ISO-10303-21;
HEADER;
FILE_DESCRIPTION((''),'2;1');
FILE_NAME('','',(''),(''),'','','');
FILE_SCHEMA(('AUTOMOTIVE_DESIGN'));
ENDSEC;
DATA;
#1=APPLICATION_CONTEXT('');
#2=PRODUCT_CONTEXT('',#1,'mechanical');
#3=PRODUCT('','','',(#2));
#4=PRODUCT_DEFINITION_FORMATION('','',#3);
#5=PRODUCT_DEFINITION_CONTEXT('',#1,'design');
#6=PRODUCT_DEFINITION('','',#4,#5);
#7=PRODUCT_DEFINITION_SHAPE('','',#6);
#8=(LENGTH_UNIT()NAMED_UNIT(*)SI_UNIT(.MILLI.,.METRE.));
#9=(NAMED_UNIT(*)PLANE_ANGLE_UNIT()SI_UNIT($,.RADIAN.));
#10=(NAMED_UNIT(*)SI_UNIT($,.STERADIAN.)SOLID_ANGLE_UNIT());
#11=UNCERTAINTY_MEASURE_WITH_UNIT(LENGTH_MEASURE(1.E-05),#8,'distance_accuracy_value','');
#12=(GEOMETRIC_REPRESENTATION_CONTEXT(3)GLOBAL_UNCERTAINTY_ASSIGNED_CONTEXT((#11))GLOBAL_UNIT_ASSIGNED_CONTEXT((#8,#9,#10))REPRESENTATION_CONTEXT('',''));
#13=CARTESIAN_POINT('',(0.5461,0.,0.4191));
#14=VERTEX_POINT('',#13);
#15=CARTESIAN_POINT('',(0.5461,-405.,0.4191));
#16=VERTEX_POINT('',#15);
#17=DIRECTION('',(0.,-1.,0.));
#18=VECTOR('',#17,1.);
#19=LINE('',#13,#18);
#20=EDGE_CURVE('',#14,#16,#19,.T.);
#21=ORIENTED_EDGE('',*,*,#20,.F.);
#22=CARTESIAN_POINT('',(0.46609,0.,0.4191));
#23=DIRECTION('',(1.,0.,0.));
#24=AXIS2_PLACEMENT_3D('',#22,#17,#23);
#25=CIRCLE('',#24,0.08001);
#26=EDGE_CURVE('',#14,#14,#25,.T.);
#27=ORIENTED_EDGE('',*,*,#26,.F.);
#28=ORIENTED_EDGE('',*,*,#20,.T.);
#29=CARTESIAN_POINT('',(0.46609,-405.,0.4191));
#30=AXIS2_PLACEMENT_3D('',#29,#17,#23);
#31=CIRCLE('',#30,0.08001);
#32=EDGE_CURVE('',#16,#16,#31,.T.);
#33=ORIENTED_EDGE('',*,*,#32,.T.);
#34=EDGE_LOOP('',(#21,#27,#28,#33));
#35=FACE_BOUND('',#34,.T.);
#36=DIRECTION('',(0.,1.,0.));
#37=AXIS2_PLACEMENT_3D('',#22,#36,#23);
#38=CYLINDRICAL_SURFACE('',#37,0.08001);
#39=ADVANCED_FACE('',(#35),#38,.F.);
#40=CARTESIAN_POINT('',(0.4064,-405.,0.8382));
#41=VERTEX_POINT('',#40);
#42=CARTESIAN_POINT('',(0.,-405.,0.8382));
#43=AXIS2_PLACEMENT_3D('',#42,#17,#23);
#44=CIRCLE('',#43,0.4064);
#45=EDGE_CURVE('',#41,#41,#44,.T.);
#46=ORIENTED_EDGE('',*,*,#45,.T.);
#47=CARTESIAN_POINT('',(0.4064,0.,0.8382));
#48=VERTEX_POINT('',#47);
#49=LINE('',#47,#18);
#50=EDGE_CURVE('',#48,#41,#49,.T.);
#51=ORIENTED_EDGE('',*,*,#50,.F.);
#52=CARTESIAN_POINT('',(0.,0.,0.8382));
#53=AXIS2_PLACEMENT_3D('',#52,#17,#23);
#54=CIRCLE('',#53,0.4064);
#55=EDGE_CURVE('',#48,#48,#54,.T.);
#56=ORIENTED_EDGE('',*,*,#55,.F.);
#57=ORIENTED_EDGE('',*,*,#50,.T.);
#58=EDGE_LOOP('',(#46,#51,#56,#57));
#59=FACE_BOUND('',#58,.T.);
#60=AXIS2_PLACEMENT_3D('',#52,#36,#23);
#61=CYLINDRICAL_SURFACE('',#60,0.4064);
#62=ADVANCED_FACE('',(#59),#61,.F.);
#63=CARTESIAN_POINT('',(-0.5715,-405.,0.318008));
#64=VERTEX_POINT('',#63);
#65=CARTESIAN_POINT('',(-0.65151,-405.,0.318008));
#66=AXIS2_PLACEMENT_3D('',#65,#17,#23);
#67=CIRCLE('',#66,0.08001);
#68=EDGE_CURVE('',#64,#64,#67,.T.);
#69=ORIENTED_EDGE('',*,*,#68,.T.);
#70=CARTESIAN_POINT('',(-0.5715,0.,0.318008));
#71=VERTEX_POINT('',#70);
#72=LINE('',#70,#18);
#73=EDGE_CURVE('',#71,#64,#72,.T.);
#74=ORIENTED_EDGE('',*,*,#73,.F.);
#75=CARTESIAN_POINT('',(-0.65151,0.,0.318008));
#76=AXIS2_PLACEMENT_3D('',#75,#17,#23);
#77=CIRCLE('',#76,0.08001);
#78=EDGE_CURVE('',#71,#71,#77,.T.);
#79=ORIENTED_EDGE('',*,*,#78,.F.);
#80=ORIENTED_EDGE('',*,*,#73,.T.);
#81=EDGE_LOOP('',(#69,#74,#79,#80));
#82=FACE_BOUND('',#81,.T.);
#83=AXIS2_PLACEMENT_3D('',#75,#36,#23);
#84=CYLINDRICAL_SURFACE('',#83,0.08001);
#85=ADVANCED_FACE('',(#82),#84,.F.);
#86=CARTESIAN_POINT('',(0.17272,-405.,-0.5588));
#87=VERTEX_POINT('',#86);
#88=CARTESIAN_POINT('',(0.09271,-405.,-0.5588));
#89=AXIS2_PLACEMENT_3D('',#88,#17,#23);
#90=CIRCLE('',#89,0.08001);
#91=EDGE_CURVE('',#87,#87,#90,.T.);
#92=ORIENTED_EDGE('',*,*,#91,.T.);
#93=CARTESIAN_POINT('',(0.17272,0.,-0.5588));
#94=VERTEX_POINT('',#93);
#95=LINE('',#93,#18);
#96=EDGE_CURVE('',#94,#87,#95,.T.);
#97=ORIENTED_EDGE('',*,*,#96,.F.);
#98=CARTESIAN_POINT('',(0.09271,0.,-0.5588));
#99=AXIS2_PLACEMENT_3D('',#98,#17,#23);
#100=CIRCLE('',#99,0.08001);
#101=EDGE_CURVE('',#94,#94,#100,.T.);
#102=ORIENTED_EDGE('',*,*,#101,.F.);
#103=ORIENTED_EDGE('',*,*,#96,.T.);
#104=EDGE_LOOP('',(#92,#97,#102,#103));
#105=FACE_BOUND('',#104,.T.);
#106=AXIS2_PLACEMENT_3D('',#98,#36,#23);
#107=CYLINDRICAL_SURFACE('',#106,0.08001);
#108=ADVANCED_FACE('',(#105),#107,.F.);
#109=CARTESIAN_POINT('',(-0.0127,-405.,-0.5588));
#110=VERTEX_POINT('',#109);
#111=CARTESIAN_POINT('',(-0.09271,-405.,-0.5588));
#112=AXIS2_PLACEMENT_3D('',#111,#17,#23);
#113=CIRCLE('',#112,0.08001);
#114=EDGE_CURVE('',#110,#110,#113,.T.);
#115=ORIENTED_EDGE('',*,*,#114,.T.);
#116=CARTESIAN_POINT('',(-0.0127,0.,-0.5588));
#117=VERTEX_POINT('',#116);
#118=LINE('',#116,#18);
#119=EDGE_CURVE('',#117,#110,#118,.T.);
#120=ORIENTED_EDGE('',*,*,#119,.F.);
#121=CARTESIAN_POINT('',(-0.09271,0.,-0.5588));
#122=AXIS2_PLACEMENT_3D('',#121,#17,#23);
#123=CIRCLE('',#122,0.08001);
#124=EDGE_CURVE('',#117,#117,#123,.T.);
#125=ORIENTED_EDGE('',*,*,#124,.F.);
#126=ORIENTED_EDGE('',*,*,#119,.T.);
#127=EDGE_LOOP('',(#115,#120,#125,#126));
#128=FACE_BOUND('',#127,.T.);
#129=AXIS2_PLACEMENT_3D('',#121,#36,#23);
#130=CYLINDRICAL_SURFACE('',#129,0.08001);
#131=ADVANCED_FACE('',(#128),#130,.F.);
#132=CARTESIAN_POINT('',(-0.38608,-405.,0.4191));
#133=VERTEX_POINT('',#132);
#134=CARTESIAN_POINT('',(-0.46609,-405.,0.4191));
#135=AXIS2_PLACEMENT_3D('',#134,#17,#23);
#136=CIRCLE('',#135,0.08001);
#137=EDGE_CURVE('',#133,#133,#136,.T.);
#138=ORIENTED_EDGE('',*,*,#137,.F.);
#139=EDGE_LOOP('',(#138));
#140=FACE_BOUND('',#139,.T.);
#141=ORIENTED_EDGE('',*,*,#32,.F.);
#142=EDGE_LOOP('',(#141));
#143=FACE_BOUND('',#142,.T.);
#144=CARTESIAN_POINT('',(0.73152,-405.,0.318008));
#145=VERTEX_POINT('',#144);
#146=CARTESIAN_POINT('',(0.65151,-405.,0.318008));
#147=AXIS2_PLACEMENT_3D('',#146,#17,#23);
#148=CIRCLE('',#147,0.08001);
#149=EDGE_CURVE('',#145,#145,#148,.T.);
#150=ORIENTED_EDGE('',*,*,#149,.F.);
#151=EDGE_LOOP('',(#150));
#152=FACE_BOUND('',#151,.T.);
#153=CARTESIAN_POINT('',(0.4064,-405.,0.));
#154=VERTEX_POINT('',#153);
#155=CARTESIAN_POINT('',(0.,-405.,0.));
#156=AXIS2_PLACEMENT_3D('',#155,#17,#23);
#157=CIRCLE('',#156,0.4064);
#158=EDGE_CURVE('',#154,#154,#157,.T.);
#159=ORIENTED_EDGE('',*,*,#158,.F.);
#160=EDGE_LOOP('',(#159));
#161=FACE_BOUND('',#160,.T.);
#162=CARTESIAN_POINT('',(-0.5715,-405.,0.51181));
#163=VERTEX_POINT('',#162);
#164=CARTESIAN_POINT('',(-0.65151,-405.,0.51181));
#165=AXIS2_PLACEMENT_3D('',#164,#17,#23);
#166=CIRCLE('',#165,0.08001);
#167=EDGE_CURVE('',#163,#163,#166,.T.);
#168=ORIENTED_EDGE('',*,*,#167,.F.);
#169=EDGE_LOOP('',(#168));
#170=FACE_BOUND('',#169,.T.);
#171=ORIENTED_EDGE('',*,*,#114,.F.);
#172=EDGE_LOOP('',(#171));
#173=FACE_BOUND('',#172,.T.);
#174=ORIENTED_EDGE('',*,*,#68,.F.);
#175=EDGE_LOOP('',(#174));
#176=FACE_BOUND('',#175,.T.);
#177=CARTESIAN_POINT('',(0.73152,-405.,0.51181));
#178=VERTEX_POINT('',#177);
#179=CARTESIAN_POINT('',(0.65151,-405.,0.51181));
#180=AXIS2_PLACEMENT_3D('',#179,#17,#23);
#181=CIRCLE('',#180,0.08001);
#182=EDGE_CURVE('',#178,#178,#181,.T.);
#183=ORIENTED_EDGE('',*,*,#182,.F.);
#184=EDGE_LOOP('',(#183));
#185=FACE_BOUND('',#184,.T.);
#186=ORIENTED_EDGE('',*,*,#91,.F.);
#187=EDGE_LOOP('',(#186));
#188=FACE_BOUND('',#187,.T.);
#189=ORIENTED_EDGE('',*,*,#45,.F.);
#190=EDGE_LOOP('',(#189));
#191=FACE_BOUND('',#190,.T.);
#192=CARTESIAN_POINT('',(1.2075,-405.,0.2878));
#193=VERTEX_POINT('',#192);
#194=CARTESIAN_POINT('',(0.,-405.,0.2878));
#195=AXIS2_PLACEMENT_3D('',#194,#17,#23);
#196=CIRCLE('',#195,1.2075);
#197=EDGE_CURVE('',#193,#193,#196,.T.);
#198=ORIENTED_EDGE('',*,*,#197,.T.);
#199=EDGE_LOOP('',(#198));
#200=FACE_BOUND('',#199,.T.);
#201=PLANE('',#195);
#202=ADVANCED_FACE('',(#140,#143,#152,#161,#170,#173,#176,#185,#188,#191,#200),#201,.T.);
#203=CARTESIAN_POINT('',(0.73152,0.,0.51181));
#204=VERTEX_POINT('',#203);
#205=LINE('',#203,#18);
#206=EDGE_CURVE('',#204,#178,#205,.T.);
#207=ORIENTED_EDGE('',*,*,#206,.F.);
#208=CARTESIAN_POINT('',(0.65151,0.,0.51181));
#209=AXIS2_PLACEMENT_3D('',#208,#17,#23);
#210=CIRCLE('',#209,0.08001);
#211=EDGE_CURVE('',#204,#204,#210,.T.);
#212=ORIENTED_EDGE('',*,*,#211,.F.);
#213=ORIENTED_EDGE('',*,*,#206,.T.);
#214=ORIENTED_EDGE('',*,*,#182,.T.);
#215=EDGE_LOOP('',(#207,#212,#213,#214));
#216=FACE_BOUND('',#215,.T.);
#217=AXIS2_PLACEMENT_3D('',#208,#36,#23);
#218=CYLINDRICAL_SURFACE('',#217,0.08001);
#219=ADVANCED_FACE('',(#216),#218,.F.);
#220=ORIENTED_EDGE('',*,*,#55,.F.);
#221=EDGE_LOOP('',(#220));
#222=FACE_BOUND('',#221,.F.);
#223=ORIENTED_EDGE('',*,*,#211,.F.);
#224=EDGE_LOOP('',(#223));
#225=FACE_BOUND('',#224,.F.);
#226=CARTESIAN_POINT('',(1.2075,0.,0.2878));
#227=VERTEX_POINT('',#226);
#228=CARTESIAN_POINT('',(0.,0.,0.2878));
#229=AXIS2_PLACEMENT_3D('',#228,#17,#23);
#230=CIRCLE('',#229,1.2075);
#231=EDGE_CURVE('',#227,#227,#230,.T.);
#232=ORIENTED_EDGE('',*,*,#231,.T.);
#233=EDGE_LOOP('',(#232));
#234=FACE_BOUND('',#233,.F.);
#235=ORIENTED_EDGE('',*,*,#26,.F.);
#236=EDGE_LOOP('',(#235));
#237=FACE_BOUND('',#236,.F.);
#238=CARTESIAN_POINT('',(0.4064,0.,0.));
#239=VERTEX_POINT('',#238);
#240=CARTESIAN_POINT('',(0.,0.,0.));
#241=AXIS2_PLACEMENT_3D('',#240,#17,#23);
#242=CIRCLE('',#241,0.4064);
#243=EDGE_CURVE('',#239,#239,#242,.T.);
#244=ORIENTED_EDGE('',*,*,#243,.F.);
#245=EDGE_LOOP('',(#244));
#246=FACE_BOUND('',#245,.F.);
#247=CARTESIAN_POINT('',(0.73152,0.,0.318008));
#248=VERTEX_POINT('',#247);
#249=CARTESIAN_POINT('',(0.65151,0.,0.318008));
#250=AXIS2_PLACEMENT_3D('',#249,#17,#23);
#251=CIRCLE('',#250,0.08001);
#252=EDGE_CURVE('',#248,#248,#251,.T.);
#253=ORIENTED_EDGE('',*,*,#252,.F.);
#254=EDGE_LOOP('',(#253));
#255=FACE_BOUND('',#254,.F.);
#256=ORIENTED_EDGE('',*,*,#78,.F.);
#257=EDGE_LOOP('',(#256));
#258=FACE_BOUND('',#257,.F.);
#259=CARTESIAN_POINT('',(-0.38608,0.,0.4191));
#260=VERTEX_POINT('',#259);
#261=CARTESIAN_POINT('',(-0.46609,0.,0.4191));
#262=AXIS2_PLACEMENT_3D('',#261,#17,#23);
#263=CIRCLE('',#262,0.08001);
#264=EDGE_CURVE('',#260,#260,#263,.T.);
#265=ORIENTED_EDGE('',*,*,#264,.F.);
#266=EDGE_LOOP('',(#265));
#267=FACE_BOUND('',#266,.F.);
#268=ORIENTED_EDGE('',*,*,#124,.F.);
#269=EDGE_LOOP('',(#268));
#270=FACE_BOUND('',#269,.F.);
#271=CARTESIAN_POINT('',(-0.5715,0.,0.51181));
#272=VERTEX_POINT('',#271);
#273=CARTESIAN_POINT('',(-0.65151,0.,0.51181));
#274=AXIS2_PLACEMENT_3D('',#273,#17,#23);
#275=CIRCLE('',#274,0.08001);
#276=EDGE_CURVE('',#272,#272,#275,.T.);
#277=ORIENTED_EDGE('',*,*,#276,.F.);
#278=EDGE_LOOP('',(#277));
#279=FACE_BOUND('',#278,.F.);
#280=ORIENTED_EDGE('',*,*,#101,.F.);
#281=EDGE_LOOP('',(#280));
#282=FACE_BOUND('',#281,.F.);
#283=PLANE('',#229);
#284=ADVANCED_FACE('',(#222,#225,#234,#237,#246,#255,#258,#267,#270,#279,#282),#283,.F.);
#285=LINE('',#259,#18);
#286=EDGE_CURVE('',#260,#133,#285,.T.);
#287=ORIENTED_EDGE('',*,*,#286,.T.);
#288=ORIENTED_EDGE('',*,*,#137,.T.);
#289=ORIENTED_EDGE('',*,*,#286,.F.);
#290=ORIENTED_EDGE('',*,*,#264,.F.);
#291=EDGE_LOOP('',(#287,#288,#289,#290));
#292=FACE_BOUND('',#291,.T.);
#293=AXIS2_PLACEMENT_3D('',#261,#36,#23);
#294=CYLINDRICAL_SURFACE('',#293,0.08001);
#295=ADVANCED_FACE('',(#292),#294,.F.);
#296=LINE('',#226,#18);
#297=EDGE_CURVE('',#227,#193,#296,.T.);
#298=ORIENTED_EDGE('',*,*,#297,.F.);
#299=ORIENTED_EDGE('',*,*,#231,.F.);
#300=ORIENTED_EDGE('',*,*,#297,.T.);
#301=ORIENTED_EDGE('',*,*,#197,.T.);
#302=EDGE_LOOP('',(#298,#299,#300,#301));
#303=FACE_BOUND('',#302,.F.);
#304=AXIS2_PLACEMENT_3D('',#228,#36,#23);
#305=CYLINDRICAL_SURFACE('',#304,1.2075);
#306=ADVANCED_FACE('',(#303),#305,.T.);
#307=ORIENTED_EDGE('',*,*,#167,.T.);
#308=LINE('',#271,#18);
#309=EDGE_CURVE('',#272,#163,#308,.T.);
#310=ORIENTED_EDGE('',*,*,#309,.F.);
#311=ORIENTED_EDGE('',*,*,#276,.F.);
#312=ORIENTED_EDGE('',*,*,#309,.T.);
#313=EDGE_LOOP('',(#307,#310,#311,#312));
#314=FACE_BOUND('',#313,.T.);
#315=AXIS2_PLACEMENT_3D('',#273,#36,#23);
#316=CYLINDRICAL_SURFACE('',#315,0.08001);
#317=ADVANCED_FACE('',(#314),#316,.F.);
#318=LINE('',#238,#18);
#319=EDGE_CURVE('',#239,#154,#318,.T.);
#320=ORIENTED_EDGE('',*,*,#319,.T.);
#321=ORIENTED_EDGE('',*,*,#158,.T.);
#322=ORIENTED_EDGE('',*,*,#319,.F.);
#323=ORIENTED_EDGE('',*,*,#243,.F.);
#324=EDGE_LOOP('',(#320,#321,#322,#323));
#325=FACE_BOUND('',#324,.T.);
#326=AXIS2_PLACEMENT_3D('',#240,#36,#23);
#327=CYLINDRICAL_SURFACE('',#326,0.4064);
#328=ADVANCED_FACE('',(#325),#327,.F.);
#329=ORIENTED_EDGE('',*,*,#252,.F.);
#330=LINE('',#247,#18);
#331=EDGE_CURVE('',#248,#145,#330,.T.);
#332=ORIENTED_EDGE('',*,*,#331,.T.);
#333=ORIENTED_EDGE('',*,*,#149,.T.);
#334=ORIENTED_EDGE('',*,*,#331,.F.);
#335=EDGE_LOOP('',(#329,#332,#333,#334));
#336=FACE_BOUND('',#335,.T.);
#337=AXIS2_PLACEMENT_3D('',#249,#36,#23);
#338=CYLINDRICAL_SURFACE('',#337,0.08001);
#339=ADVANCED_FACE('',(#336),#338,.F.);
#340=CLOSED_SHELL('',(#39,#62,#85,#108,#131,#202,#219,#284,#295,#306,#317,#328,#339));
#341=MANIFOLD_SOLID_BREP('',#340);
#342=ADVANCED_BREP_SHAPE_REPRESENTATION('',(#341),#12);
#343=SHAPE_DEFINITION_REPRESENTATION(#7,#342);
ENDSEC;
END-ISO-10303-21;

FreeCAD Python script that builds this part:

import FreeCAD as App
import Part
import Sketcher

V = App.Vector

doc = App.newDocument("Part")
body = doc.addObject("PartDesign::Body", "Body")

# Sketch on XZ plane
sketch1 = doc.addObject("Sketcher::SketchObject", "Sketch")
body.addObject(sketch1)
sketch1.AttachmentSupport = (doc.XZ_Plane, [""])
sketch1.MapMode = "FlatFace"
sketch1.addGeometry(Part.Circle(V(0, 0.29, 0), V(0, 0, 1), 1.21), False)
sketch1.addGeometry(Part.Circle(V(-0.09, -0.56, 0), V(0, 0, 1), 0.08), False)
sketch1.addGeometry(Part.Circle(V(0, 0, 0), V(0, 0, 1), 0.41), False)
sketch1.addGeometry(Part.Circle(V(0.09, -0.56, 0), V(0, 0, 1), 0.08), False)
sketch1.addGeometry(Part.Circle(V(-0.65, 0.32, 0), V(0, 0, 1), 0.08), False)
sketch1.addGeometry(Part.Circle(V(-0.65, 0.51, 0), V(0, 0, 1), 0.08), False)
sketch1.addGeometry(Part.Circle(V(-0.47, 0.42, 0), V(0, 0, 1), 0.08), False)
sketch1.addGeometry(Part.Circle(V(0, 0.84, 0), V(0, 0, 1), 0.41), False)
sketch1.addGeometry(Part.Circle(V(0.47, 0.42, 0), V(0, 0, 1), 0.08), False)
sketch1.addGeometry(Part.Circle(V(0.65, 0.32, 0), V(0, 0, 1), 0.08), False)
sketch1.addGeometry(Part.Circle(V(0.65, 0.51, 0), V(0, 0, 1), 0.08), False)
sketch1.addConstraint(Sketcher.Constraint("Coincident", 2, 3, -1, 1))
sketch1.addConstraint(Sketcher.Constraint("Equal", 1, 3))
sketch1.addConstraint(Sketcher.Constraint("Equal", 3, 4))
sketch1.addConstraint(Sketcher.Constraint("Equal", 4, 5))
sketch1.addConstraint(Sketcher.Constraint("Equal", 5, 6))
sketch1.addConstraint(Sketcher.Constraint("Equal", 2, 7))
sketch1.addConstraint(Sketcher.Constraint("Equal", 6, 8))
sketch1.addConstraint(Sketcher.Constraint("Equal", 8, 9))
sketch1.addConstraint(Sketcher.Constraint("Equal", 9, 10))
sketch1.addConstraint(Sketcher.Constraint("Symmetric", 1, 3, 3, 3, -2))
sketch1.addConstraint(Sketcher.Constraint("Symmetric", 6, 3, 8, 3, -2))
sketch1.addConstraint(Sketcher.Constraint("Symmetric", 4, 3, 9, 3, -2))
sketch1.addConstraint(Sketcher.Constraint("Symmetric", 5, 3, 10, 3, -2))
sketch1.addConstraint(Sketcher.Constraint("PointOnObject", 0, 3, -2))
sketch1.addConstraint(Sketcher.Constraint("PointOnObject", 7, 3, -2))
sketch1.addConstraint(Sketcher.Constraint("Vertical", 4, 3, 5, 3))
sketch1.addConstraint(Sketcher.Constraint("Diameter", 0, 2.415))
sketch1.addConstraint(Sketcher.Constraint("Diameter", 2, 0.8128))
sketch1.addConstraint(Sketcher.Constraint("Diameter", 1, 0.16002))
sketch1.addConstraint(Sketcher.Constraint("DistanceY", -1, 1, 0, 3, 0.2878))
sketch1.addConstraint(Sketcher.Constraint("DistanceY", 1, 3, -1, 1, 0.5588))
sketch1.addConstraint(Sketcher.Constraint("DistanceY", -1, 1, 6, 3, 0.4191))
sketch1.addConstraint(Sketcher.Constraint("DistanceY", -1, 1, 7, 3, 0.8382))
sketch1.addConstraint(Sketcher.Constraint("DistanceX", 4, 3, 1, 3, 0.5588))
sketch1.addConstraint(Sketcher.Constraint("DistanceY", 4, 3, 5, 3, 0.193802))
sketch1.addConstraint(Sketcher.Constraint("DistanceX", 1, 3, -1, 1, 0.09271))
sketch1.addConstraint(Sketcher.Constraint("DistanceY", -1, 1, 5, 3, 0.51181))
sketch1.addConstraint(Sketcher.Constraint("DistanceX", 6, 3, -1, 1, 0.46609))
pad1 = doc.addObject("PartDesign::Pad", "Pad")
body.addObject(pad1)
pad1.Profile = sketch1
pad1.Length = 405

doc.recompute()
